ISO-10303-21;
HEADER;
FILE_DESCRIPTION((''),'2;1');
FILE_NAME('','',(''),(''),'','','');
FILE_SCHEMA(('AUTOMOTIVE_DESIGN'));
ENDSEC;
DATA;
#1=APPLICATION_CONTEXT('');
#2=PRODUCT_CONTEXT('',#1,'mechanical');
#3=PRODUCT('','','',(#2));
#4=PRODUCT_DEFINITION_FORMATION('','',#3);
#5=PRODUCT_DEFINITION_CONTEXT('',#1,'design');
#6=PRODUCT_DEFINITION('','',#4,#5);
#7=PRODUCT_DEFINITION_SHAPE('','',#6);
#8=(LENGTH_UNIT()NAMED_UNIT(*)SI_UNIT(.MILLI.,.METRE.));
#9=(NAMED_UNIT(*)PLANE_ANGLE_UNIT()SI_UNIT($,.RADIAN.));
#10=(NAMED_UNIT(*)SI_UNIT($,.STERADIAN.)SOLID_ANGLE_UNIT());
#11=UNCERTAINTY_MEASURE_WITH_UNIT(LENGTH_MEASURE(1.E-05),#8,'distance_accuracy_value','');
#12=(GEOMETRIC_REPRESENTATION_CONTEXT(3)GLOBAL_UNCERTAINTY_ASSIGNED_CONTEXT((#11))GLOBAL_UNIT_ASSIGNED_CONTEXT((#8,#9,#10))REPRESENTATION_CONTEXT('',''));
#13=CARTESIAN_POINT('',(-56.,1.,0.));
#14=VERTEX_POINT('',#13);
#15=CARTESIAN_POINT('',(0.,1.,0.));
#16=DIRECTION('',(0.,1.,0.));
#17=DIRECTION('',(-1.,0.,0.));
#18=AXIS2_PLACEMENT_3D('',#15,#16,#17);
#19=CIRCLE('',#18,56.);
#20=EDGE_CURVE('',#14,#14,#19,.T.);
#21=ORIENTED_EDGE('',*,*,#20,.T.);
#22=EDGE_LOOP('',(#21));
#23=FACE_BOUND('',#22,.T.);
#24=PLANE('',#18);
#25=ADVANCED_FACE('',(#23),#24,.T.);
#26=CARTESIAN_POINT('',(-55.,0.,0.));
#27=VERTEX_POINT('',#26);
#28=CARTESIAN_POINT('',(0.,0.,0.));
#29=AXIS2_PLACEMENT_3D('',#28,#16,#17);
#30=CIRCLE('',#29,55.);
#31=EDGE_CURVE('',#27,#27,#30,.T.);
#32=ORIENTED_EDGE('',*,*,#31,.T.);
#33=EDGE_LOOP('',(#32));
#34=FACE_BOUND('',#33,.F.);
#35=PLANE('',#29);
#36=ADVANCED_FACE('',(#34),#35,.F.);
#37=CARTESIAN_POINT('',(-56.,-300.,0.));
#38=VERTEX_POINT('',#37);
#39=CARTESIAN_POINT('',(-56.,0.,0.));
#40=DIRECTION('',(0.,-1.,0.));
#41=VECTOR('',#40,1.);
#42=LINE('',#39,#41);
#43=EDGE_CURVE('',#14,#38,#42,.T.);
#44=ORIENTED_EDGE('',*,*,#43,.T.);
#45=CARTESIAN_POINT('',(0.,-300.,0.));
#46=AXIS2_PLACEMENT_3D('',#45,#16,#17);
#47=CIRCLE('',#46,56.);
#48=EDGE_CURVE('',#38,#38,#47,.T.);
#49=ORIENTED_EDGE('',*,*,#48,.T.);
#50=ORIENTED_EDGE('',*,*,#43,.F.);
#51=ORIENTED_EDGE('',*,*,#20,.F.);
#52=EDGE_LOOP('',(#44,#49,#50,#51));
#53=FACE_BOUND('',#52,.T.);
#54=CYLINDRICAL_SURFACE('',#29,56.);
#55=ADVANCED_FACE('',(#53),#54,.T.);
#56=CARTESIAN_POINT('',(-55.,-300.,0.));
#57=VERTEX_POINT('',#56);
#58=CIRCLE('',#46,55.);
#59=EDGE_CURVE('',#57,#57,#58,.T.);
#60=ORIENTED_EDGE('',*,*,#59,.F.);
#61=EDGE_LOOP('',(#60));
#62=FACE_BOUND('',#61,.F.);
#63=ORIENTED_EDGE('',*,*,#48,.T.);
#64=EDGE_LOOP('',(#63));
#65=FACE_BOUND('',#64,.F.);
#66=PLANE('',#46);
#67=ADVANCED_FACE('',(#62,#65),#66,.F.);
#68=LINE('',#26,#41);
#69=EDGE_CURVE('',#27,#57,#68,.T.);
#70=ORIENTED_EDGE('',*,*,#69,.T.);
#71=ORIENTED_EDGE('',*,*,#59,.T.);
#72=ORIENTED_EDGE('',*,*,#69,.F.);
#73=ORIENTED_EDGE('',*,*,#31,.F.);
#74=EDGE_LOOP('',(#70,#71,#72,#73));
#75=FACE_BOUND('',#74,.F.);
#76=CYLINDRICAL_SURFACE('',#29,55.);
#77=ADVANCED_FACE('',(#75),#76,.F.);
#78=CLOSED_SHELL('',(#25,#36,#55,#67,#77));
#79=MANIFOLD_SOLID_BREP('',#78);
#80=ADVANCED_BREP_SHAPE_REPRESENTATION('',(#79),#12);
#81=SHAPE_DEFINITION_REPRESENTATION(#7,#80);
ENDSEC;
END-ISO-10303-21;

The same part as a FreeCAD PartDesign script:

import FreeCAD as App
import Part
import Sketcher

V = App.Vector
Q = App.Units.Quantity


def faces_at(feature, points):
    """Names of the faces that lie closest to the given points."""
    faces = feature.Shape.Faces
    near = lambda p: min(range(len(faces)), key=lambda i: faces[i].distToShape(Part.Vertex(*p))[0])
    return sorted({f"Face{near(p) + 1}" for p in points})

doc = App.newDocument("Part")
params = doc.addObject("Spreadsheet::Sheet", "Params")
for row, (alias, value) in enumerate([
    ("sketch1_diameter", "110 mm"),
    ("pad1_length", "300 mm"),
    ("thickness_wall", "1 mm"),
], start=1):
    params.set(f"A{row}", alias)
    params.set(f"B{row}", "=" + value)
    params.setAlias(f"B{row}", alias)

body = doc.addObject("PartDesign::Body", "Body")

# Sketch on XZ plane
sketch1 = body.newObject("Sketcher::SketchObject", "Sketch")
sketch1.AttachmentSupport = (doc.getObject("XZ_Plane"), [""])
sketch1.MapMode = "FlatFace"
sketch1.addGeometry(Part.Circle(V(0, 0, 0), V(0, 0, 1), 55), False)
sketch1.addConstraint([
    Sketcher.Constraint("Coincident", 0, 3, -1, 1),
    Sketcher.Constraint("Diameter", 0, Q("110 mm")),
])
sketch1.setExpression("Constraints[1]", "Params.sketch1_diameter")
pad1 = body.newObject("PartDesign::Pad", "Pad")
pad1.Profile = sketch1
pad1.setExpression("Length", "Params.pad1_length")
doc.recompute()

thickness = body.newObject("PartDesign::Thickness", "Thickness")
thickness.Base = (pad1, faces_at(pad1, [(-13.749, -300, -10.403)]))
thickness.setExpression("Value", "Params.thickness_wall")
thickness.Reversed = False
thickness.Join = "Intersection"

doc.recompute()
